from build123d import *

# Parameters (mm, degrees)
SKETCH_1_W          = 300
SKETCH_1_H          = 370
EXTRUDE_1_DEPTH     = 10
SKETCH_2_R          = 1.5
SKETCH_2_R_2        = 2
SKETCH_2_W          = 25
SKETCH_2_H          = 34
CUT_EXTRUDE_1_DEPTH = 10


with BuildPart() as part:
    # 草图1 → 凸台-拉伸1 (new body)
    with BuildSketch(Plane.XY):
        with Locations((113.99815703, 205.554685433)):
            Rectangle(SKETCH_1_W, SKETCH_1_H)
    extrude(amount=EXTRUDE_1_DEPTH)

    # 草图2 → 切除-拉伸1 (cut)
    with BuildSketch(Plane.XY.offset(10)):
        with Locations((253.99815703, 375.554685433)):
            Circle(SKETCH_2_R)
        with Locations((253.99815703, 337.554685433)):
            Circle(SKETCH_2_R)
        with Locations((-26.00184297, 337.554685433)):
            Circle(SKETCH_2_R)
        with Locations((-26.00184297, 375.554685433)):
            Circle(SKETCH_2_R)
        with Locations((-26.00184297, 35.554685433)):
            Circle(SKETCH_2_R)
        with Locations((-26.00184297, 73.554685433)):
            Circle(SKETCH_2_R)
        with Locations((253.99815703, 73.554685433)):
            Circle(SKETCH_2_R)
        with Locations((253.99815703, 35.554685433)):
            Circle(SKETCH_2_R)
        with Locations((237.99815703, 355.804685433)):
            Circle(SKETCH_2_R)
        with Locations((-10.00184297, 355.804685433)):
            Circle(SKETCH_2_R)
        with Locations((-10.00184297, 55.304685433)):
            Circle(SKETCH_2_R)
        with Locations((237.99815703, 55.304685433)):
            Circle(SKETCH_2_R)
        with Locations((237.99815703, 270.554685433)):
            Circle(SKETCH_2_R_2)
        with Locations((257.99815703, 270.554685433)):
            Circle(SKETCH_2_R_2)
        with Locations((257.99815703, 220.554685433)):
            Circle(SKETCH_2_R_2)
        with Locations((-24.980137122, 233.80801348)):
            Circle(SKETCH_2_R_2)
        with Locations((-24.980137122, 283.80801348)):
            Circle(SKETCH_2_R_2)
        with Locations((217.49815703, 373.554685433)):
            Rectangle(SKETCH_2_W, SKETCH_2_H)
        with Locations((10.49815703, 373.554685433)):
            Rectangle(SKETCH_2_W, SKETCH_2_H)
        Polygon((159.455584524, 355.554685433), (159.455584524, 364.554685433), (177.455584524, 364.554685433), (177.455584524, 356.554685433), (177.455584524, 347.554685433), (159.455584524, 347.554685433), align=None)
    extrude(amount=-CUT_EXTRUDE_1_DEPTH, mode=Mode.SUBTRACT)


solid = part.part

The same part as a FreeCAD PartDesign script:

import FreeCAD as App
import Part
import Sketcher
Q = App.Units.Quantity


def add_polygon(sketch, points):
    """Adds a closed chain of lines whose ends are joined by coincident constraints."""
    first, n = sketch.GeometryCount, len(points)
    for a, b in zip(points, points[1:] + points[:1]):
        sketch.addGeometry(Part.LineSegment(App.Vector(*a, 0), App.Vector(*b, 0)), False)
    for i in range(n):
        sketch.addConstraint(Sketcher.Constraint("Coincident", first + i, 2, first + (i + 1) % n, 1))

doc = App.newDocument("Part")
body = doc.addObject("PartDesign::Body", "Body")

# Sketch on XY plane
sketch1 = body.newObject("Sketcher::SketchObject", "Sketch")
sketch1.AttachmentSupport = (doc.getObject("XY_Plane"), [""])
sketch1.MapMode = "FlatFace"
add_polygon(sketch1, [(-36, 391), (-36, 21), (264, 21), (264, 391)])  # lines 0-3
sketch1.addConstraint([
    Sketcher.Constraint("Vertical", 0),
    Sketcher.Constraint("Horizontal", 1),
    Sketcher.Constraint("Vertical", 2),
    Sketcher.Constraint("Horizontal", 3),
    Sketcher.Constraint("DistanceX", 1, 1, 1, 2, Q("300 mm")),
    Sketcher.Constraint("DistanceY", 0, 2, 0, 1, Q("370 mm")),
    Sketcher.Constraint("DistanceX", 0, 2, -1, 1, Q("36.001843 mm")),
    Sketcher.Constraint("DistanceY", -1, 1, 0, 2, Q("20.554685 mm")),
])
pad1 = body.newObject("PartDesign::Pad", "Pad")
pad1.Profile = sketch1
pad1.Length = 10

# Sketch on XY plane
sketch2 = body.newObject("Sketcher::SketchObject", "Sketch001")
sketch2.AttachmentSupport = (doc.getObject("XY_Plane"), [""])
sketch2.MapMode = "FlatFace"
sketch2.AttachmentOffset = App.Placement(App.Vector(0, 0, 10), App.Rotation())
sketch2.addGeometry(Part.Circle(App.Vector(254, 375.6, 0), App.Vector(0, 0, 1), 1.5), False)  # 0
sketch2.addGeometry(Part.Circle(App.Vector(254, 337.6, 0), App.Vector(0, 0, 1), 1.5), False)  # 1
sketch2.addGeometry(Part.Circle(App.Vector(-26, 337.6, 0), App.Vector(0, 0, 1), 1.5), False)  # 2
sketch2.addGeometry(Part.Circle(App.Vector(-26, 375.6, 0), App.Vector(0, 0, 1), 1.5), False)  # 3
sketch2.addGeometry(Part.Circle(App.Vector(-26, 35.6, 0), App.Vector(0, 0, 1), 1.5), False)  # 4
sketch2.addGeometry(Part.Circle(App.Vector(-26, 73.6, 0), App.Vector(0, 0, 1), 1.5), False)  # 5
sketch2.addGeometry(Part.Circle(App.Vector(254, 73.6, 0), App.Vector(0, 0, 1), 1.5), False)  # 6
sketch2.addGeometry(Part.Circle(App.Vector(254, 35.6, 0), App.Vector(0, 0, 1), 1.5), False)  # 7
sketch2.addGeometry(Part.Circle(App.Vector(238, 355.8, 0), App.Vector(0, 0, 1), 1.5), False)  # 8
sketch2.addGeometry(Part.Circle(App.Vector(-10, 355.8, 0), App.Vector(0, 0, 1), 1.5), False)  # 9
sketch2.addGeometry(Part.Circle(App.Vector(-10, 55.3, 0), App.Vector(0, 0, 1), 1.5), False)  # 10
sketch2.addGeometry(Part.Circle(App.Vector(238, 55.3, 0), App.Vector(0, 0, 1), 1.5), False)  # 11
sketch2.addGeometry(Part.Circle(App.Vector(238, 270.6, 0), App.Vector(0, 0, 1), 2), False)  # 12
sketch2.addGeometry(Part.Circle(App.Vector(258, 270.6, 0), App.Vector(0, 0, 1), 2), False)  # 13
sketch2.addGeometry(Part.Circle(App.Vector(258, 220.6, 0), App.Vector(0, 0, 1), 2), False)  # 14
sketch2.addGeometry(Part.Circle(App.Vector(-25, 233.8, 0), App.Vector(0, 0, 1), 2), False)  # 15
sketch2.addGeometry(Part.Circle(App.Vector(-25, 283.8, 0), App.Vector(0, 0, 1), 2), False)  # 16
add_polygon(sketch2, [(205, 390.6), (205, 356.6), (230, 356.6), (230, 390.6)])  # lines 17-20
add_polygon(sketch2, [(-2, 390.6), (-2, 356.6), (23, 356.6), (23, 390.6)])  # lines 21-24
add_polygon(sketch2, [(159.5, 364.6), (159.5, 347.6), (177.5, 347.6), (177.5, 364.6)])  # lines 25-28
sketch2.addConstraint([
    Sketcher.Constraint("Vertical", 17),
    Sketcher.Constraint("Horizontal", 18),
    Sketcher.Constraint("Vertical", 19),
    Sketcher.Constraint("Horizontal", 20),
    Sketcher.Constraint("Vertical", 21),
    Sketcher.Constraint("Horizontal", 22),
    Sketcher.Constraint("Vertical", 23),
    Sketcher.Constraint("Horizontal", 24),
    Sketcher.Constraint("Vertical", 25),
    Sketcher.Constraint("Horizontal", 26),
    Sketcher.Constraint("Vertical", 27),
    Sketcher.Constraint("Horizontal", 28),
    Sketcher.Constraint("Equal", 0, 1),
    Sketcher.Constraint("Equal", 1, 2),
    Sketcher.Constraint("Equal", 2, 3),
    Sketcher.Constraint("Equal", 3, 4),
    Sketcher.Constraint("Equal", 4, 5),
    Sketcher.Constraint("Equal", 5, 6),
    Sketcher.Constraint("Equal", 6, 7),
    Sketcher.Constraint("Equal", 7, 8),
    Sketcher.Constraint("Equal", 8, 9),
    Sketcher.Constraint("Equal", 9, 10),
    Sketcher.Constraint("Equal", 10, 11),
    Sketcher.Constraint("Equal", 12, 13),
    Sketcher.Constraint("Equal", 13, 14),
    Sketcher.Constraint("Equal", 14, 15),
    Sketcher.Constraint("Equal", 15, 16),
    Sketcher.Constraint("Horizontal", 1, 3, 2, 3),
    Sketcher.Constraint("Horizontal", 0, 3, 3, 3),
    Sketcher.Constraint("Horizontal", 5, 3, 6, 3),
    Sketcher.Constraint("Horizontal", 4, 3, 7, 3),
    Sketcher.Constraint("Horizontal", 8, 3, 9, 3),
    Sketcher.Constraint("Horizontal", 10, 3, 11, 3),
    Sketcher.Constraint("Horizontal", 12, 3, 13, 3),
    Sketcher.Constraint("Horizontal", 18, 2, 21, 2),
    Sketcher.Constraint("Horizontal", 20, 2, 23, 2),
    Sketcher.Constraint("Vertical", 0, 3, 1, 3),
    Sketcher.Constraint("Vertical", 2, 3, 3, 3),
    Sketcher.Constraint("Vertical", 3, 3, 4, 3),
    Sketcher.Constraint("Vertical", 4, 3, 5, 3),
    Sketcher.Constraint("Vertical", 1, 3, 6, 3),
    Sketcher.Constraint("Vertical", 6, 3, 7, 3),
    Sketcher.Constraint("Vertical", 9, 3, 10, 3),
    Sketcher.Constraint("Vertical", 8, 3, 11, 3),
    Sketcher.Constraint("Vertical", 11, 3, 12, 3),
    Sketcher.Constraint("Vertical", 13, 3, 14, 3),
    Sketcher.Constraint("Vertical", 15, 3, 16, 3),
    Sketcher.Constraint("Equal", 20, 22),
    Sketcher.Constraint("Diameter", 0, Q("3 mm")),
    Sketcher.Constraint("Diameter", 12, Q("4 mm")),
    Sketcher.Constraint("DistanceX", 18, 1, 18, 2, Q("25 mm")),
    Sketcher.Constraint("DistanceX", 26, 1, 26, 2, Q("18 mm")),
    Sketcher.Constraint("DistanceY", 17, 2, 17, 1, Q("34 mm")),
    Sketcher.Constraint("DistanceY", 25, 2, 25, 1, Q("17 mm")),
    Sketcher.Constraint("DistanceY", 1, 3, 0, 3, Q("38 mm")),
    Sketcher.Constraint("DistanceX", 2, 3, 1, 3, Q("280 mm")),
    Sketcher.Constraint("DistanceY", 4, 3, 2, 3, Q("302 mm")),
    Sketcher.Constraint("DistanceY", 4, 3, 5, 3, Q("38 mm")),
    Sketcher.Constraint("DistanceX", 8, 3, 1, 3, Q("16 mm")),
    Sketcher.Constraint("DistanceX", 2, 3, 9, 3, Q("16 mm")),
    Sketcher.Constraint("DistanceY", 12, 3, 1, 3, Q("67 mm")),
    Sketcher.Constraint("DistanceX", 12, 3, 13, 3, Q("20 mm")),
    Sketcher.Constraint("DistanceY", 14, 3, 13, 3, Q("50 mm")),
    Sketcher.Constraint("DistanceY", 15, 3, 16, 3, Q("50 mm")),
    Sketcher.Constraint("DistanceX", 17, 2, 8, 3, Q("33 mm")),
    Sketcher.Constraint("DistanceY", 17, 2, 0, 3, Q("19 mm")),
    Sketcher.Constraint("DistanceX", 9, 3, 21, 2, Q("8 mm")),
    Sketcher.Constraint("DistanceY", 25, 2, 17, 2, Q("9 mm")),
    Sketcher.Constraint("DistanceY", 1, 3, 8, 3, Q("18.25 mm")),
    Sketcher.Constraint("DistanceY", 10, 3, 5, 3, Q("18.25 mm")),
    Sketcher.Constraint("DistanceY", 15, 3, 2, 3, Q("103.746672 mm")),
    Sketcher.Constraint("DistanceX", -1, 1, 0, 3, Q("253.998157 mm")),
    Sketcher.Constraint("DistanceY", -1, 1, 0, 3, Q("375.554685 mm")),
    Sketcher.Constraint("DistanceX", 15, 3, -1, 1, Q("24.980137 mm")),
    Sketcher.Constraint("DistanceX", -1, 1, 25, 2, Q("159.455585 mm")),
])
pocket1 = body.newObject("PartDesign::Pocket", "Pocket")
pocket1.Profile = sketch2
pocket1.Length = 10

doc.recompute()
